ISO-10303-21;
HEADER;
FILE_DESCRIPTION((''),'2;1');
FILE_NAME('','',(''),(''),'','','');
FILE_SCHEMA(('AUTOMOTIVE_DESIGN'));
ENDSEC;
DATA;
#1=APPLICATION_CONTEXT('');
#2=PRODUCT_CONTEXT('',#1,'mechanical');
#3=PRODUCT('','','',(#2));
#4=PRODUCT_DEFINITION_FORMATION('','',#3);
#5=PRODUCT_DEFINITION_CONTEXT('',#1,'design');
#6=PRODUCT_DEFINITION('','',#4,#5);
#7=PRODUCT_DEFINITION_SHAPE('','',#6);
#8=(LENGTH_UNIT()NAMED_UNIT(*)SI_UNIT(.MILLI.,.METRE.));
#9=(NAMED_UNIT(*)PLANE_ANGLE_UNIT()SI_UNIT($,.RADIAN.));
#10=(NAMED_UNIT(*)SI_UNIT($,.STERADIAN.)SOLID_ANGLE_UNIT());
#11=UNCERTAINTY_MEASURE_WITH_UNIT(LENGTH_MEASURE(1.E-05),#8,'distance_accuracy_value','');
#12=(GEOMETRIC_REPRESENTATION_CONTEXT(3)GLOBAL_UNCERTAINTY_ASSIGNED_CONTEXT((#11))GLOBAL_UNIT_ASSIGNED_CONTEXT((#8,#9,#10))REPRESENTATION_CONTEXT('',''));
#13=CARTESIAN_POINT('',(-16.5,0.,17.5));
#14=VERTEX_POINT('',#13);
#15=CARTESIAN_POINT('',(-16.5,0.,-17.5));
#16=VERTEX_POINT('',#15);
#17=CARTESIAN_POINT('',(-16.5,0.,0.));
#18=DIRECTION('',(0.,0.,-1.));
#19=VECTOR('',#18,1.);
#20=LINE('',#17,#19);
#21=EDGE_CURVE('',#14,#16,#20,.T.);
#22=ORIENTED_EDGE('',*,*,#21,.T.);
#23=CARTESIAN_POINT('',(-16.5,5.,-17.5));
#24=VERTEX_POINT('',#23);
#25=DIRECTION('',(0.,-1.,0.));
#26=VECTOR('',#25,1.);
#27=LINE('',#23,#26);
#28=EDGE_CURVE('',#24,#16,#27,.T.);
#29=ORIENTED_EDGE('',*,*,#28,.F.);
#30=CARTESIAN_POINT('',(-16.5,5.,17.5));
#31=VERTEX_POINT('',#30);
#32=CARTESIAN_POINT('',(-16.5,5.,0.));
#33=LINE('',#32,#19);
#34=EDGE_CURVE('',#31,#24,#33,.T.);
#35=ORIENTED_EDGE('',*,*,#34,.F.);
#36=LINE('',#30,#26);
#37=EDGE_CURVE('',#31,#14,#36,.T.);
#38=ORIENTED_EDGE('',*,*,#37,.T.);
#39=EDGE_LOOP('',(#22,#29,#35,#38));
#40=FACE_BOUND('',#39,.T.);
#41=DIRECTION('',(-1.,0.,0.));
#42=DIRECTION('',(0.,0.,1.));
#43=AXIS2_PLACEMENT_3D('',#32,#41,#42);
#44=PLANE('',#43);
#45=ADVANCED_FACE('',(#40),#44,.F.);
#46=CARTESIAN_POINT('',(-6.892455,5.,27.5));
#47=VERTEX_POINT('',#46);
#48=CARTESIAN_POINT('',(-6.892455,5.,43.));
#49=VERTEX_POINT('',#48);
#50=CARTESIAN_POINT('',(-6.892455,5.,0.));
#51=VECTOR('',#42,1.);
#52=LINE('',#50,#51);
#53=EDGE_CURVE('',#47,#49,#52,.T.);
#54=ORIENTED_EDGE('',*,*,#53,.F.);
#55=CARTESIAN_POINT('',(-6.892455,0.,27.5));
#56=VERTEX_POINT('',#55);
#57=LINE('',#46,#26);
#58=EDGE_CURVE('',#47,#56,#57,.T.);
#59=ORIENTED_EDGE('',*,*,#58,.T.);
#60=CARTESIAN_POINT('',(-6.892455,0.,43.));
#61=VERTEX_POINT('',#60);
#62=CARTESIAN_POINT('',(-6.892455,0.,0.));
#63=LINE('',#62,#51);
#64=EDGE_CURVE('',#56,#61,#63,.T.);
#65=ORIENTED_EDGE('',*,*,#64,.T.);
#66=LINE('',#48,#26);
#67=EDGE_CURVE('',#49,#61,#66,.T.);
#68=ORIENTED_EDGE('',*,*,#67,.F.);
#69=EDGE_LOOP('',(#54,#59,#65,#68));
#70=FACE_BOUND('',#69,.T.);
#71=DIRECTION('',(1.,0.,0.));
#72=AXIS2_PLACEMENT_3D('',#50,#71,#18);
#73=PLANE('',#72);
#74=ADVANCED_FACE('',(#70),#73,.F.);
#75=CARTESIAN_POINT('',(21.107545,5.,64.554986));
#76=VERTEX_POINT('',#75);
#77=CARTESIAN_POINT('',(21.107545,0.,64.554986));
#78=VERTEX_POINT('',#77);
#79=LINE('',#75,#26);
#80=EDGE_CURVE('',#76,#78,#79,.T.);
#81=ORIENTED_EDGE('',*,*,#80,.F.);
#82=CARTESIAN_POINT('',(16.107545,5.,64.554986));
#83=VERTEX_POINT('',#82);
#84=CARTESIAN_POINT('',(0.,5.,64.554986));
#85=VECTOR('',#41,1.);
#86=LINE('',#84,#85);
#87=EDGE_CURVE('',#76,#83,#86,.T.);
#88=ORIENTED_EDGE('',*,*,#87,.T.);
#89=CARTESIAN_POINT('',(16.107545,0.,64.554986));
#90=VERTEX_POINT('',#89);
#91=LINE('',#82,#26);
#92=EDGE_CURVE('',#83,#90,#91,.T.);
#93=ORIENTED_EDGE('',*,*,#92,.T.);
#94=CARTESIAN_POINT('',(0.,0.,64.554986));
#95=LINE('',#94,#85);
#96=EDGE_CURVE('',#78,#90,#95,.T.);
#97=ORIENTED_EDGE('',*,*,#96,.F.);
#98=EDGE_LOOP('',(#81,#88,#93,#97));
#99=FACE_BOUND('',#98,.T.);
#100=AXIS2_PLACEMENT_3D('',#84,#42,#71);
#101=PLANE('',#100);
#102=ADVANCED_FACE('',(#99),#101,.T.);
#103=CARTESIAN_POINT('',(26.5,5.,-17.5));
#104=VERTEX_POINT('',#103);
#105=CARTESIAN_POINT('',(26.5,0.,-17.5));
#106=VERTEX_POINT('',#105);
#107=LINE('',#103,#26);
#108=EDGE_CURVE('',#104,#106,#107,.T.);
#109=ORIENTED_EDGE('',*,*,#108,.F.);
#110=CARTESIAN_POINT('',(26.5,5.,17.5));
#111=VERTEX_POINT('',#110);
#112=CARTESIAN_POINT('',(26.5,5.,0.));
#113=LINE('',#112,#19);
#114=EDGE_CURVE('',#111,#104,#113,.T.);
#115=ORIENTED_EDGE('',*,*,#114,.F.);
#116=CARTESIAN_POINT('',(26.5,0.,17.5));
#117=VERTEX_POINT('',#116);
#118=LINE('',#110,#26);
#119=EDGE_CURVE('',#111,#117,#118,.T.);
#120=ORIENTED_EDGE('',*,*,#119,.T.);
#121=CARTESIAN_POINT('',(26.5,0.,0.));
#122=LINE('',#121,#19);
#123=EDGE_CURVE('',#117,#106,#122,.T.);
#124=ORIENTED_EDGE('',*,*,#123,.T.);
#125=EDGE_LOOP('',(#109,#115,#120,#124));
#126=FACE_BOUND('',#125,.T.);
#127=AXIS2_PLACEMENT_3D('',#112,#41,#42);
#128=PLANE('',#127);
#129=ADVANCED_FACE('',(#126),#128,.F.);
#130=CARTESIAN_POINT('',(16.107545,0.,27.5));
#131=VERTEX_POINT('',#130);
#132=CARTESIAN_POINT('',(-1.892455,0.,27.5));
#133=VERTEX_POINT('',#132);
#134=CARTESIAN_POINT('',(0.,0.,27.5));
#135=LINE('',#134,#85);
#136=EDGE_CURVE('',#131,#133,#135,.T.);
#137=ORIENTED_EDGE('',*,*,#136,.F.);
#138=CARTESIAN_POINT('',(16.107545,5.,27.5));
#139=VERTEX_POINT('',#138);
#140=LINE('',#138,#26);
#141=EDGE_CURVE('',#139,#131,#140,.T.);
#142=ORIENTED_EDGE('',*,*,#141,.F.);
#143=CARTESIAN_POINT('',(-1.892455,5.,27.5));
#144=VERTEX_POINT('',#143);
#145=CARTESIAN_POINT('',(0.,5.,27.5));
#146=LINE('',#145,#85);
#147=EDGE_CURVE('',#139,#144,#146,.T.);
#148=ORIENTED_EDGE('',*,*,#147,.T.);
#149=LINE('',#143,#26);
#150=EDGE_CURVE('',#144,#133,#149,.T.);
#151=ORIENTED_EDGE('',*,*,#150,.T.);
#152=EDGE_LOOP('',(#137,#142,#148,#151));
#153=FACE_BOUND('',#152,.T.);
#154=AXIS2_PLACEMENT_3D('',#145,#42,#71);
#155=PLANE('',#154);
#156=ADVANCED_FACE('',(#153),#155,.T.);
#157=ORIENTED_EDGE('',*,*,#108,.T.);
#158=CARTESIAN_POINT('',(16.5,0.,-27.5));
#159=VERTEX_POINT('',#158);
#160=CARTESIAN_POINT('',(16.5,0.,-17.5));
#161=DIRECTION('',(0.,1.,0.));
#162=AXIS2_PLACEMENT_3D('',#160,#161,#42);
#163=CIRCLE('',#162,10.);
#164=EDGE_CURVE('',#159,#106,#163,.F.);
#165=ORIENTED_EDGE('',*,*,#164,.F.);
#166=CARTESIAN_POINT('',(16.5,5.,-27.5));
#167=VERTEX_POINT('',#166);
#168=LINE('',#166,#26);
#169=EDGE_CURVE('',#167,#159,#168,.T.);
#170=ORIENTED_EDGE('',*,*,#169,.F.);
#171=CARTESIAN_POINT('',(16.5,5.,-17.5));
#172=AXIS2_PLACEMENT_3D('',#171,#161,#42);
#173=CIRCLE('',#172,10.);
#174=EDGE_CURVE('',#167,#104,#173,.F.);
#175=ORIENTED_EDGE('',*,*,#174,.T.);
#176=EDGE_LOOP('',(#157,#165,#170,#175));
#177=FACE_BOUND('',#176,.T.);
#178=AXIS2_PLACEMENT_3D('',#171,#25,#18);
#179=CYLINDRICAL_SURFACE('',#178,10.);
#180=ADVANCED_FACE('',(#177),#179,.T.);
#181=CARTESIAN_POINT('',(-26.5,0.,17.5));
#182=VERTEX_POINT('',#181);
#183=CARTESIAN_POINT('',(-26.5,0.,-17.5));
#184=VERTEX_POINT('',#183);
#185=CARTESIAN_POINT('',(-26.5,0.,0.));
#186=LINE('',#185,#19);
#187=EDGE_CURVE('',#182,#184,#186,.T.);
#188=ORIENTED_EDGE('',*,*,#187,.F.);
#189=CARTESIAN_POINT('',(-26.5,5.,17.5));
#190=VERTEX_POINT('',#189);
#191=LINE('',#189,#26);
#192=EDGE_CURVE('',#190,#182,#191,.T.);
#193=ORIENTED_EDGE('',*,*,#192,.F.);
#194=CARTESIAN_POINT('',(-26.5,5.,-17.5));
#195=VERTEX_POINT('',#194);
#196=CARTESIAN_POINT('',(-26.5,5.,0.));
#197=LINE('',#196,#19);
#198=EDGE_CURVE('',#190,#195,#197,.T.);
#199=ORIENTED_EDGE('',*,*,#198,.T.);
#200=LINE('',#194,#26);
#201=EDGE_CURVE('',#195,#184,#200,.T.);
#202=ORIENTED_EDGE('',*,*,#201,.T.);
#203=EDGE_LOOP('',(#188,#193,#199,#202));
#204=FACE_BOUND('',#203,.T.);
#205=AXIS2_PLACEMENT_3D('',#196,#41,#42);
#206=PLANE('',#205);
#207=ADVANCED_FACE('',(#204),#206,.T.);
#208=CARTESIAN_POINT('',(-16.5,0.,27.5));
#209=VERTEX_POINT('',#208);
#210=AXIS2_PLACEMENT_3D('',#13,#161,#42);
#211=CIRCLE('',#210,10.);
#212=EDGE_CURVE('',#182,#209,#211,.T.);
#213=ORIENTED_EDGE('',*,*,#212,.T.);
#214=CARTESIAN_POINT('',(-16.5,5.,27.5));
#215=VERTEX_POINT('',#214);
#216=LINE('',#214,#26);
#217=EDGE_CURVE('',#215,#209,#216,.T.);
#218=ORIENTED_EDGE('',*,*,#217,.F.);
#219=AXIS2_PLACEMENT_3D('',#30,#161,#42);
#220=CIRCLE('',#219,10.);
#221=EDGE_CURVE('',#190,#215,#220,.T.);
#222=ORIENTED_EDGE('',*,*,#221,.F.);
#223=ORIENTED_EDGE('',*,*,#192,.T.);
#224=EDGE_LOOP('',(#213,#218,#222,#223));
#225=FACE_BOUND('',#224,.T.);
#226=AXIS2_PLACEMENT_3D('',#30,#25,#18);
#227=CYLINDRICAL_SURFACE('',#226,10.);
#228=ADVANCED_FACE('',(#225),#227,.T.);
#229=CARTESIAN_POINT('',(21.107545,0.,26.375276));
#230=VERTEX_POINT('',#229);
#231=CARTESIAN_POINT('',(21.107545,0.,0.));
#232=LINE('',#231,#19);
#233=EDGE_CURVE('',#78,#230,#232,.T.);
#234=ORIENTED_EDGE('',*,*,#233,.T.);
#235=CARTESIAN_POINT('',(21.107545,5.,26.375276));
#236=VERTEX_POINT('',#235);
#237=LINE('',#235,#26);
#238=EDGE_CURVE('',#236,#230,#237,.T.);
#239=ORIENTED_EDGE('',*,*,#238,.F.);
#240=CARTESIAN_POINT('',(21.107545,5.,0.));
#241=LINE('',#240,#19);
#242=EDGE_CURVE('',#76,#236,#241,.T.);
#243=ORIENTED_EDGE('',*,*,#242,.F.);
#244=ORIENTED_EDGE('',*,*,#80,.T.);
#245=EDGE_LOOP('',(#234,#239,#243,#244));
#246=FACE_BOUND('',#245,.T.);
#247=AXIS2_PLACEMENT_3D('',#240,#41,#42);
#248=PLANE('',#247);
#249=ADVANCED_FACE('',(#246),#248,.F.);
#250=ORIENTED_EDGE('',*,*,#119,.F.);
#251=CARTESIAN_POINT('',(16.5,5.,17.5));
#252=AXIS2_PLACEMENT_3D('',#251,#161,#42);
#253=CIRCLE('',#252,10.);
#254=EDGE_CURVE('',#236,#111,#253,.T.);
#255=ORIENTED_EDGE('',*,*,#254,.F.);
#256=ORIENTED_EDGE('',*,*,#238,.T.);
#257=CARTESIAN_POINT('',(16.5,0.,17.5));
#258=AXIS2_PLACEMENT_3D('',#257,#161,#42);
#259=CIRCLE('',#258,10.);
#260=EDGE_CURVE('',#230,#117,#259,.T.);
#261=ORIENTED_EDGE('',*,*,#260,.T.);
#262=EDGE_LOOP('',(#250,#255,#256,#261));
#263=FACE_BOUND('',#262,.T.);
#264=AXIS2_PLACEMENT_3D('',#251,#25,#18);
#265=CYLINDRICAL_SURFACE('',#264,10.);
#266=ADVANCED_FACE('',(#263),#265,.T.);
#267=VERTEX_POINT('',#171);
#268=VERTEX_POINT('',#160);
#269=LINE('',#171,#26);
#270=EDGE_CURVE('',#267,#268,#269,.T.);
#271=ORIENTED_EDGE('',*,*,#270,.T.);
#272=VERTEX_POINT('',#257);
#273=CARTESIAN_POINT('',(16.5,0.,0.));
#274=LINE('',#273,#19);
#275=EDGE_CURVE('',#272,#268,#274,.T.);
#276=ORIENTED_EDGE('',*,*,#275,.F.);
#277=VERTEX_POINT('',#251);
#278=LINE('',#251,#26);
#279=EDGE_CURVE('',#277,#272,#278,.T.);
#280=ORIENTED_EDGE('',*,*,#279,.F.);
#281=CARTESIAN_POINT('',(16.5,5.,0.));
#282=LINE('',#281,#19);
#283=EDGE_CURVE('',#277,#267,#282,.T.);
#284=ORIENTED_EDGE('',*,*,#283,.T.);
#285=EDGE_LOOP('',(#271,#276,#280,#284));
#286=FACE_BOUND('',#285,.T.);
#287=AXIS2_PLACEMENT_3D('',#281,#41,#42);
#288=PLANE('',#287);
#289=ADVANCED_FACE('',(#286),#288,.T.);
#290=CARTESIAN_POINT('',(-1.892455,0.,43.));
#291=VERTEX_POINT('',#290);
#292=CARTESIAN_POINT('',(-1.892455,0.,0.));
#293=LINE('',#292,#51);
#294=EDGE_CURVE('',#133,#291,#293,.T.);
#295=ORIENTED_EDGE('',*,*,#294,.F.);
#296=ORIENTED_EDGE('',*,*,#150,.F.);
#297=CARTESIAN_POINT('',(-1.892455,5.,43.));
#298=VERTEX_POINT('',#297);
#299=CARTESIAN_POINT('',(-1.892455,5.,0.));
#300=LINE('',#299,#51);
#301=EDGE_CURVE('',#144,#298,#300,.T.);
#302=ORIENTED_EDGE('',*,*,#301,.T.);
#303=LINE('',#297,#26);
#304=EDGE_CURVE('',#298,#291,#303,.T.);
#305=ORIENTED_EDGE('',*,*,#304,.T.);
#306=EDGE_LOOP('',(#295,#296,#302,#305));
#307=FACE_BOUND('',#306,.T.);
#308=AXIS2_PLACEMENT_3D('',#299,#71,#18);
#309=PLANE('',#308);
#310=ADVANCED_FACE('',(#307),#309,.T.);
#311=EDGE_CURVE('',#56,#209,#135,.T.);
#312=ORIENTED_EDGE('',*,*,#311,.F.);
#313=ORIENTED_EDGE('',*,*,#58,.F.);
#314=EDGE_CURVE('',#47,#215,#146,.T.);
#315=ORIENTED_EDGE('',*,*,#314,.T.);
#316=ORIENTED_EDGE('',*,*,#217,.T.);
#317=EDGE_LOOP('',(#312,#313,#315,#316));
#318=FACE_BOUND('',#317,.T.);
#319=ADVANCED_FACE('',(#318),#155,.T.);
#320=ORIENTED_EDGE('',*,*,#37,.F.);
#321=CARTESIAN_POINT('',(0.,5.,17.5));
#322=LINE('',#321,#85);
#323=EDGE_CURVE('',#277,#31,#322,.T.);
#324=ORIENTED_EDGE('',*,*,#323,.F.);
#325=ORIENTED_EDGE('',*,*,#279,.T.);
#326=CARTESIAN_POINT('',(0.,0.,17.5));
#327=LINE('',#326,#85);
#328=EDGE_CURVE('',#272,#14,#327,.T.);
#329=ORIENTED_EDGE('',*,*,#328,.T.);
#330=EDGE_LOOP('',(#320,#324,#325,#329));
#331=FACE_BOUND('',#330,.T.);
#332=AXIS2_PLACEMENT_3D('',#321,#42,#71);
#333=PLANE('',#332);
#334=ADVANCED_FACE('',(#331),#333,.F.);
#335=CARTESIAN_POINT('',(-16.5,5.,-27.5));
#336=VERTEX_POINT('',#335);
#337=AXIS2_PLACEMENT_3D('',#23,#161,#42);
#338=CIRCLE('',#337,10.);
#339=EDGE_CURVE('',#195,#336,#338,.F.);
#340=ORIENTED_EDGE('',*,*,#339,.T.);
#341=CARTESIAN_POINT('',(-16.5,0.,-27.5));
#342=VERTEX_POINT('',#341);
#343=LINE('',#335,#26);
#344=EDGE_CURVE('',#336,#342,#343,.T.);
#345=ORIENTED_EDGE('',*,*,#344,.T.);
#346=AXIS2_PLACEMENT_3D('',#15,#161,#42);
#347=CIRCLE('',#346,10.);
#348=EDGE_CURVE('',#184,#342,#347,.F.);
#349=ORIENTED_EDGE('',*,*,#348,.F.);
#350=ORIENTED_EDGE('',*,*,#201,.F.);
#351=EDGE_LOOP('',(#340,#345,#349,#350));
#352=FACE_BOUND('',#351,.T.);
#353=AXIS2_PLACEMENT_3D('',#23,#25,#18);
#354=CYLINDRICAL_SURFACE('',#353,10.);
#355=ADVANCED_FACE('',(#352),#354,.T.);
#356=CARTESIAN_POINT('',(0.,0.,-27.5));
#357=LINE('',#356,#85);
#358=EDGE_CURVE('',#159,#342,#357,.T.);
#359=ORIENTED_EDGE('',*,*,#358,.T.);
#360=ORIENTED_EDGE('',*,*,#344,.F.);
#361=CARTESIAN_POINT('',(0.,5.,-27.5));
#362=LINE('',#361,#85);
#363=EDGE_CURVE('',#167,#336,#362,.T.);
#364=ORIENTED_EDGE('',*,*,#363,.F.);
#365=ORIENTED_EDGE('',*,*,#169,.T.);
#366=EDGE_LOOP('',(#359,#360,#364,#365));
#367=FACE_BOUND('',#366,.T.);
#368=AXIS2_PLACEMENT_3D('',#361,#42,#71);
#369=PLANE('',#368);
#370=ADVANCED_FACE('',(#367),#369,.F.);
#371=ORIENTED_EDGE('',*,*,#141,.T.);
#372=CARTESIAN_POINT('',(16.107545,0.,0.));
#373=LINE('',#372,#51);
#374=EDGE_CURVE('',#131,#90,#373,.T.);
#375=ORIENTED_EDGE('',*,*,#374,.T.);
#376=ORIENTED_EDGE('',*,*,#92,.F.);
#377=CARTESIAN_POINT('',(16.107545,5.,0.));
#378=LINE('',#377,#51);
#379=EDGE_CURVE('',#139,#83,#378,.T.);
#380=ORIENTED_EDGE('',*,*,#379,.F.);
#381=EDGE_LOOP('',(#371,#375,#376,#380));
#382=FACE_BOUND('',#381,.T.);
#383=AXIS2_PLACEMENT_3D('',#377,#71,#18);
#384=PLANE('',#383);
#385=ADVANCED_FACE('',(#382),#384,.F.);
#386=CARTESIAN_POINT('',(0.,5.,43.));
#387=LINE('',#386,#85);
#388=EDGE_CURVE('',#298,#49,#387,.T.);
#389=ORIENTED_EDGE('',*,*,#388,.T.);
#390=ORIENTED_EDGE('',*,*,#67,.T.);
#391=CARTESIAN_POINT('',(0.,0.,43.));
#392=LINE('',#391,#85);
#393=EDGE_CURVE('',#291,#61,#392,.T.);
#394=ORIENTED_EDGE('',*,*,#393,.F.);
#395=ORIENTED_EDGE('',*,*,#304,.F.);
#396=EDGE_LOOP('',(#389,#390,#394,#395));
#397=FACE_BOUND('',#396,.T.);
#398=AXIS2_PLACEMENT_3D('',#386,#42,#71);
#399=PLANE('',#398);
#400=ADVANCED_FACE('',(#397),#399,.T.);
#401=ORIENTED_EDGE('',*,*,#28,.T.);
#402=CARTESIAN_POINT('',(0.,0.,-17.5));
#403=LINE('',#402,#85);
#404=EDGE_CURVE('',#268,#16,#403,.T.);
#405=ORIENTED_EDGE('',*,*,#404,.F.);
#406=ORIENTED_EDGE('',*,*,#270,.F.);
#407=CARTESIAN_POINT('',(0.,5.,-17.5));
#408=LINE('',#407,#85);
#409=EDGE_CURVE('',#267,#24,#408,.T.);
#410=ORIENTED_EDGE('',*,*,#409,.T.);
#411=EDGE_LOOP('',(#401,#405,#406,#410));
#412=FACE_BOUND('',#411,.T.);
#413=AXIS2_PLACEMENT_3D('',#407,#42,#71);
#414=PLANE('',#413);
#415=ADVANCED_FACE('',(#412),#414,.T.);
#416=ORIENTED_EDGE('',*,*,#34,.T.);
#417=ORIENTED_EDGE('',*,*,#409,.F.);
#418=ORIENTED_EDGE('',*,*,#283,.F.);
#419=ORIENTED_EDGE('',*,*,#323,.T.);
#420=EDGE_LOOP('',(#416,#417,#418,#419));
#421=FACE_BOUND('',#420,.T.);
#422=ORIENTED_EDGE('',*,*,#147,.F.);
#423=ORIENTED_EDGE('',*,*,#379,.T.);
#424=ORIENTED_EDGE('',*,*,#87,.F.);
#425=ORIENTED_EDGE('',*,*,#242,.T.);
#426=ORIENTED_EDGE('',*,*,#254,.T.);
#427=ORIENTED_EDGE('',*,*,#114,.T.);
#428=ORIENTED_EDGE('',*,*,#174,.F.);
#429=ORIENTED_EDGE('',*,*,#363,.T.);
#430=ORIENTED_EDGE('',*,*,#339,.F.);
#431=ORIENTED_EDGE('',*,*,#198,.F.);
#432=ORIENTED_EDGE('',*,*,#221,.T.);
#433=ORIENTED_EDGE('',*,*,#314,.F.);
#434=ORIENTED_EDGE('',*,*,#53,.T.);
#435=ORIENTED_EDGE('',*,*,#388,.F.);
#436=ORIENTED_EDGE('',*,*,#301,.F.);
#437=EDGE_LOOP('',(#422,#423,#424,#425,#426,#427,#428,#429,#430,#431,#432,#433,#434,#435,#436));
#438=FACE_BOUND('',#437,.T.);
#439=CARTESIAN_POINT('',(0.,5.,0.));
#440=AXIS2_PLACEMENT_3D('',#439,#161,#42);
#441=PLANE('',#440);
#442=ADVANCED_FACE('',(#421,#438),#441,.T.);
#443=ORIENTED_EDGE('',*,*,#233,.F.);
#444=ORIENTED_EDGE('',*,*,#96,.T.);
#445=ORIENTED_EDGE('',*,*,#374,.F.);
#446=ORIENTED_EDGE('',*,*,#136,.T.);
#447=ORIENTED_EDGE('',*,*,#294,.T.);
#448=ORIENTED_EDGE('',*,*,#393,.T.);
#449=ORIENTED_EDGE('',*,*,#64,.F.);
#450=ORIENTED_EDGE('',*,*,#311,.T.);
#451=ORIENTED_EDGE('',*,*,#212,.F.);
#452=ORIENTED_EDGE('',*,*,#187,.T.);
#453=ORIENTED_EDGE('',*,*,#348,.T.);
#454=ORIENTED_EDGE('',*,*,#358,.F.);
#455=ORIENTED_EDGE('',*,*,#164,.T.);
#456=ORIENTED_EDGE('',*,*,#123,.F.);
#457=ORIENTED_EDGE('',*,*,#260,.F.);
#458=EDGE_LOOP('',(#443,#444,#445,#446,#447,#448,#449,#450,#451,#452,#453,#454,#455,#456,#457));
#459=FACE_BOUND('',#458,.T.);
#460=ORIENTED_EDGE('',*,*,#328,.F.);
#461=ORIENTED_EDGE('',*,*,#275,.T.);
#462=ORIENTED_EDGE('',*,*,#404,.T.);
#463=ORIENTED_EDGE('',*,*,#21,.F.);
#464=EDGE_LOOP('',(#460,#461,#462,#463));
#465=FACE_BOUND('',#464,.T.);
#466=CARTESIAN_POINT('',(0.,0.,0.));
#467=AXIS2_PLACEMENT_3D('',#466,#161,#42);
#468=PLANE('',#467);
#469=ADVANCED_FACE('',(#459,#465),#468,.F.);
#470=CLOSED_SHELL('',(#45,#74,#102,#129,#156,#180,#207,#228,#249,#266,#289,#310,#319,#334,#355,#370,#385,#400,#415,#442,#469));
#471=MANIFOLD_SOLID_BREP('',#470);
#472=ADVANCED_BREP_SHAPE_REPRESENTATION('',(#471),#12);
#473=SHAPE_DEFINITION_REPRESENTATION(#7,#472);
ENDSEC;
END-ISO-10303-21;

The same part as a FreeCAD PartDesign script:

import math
import FreeCAD as App
import Part
import Sketcher
from FreeCAD import Vector
Q = App.Units.Quantity

doc = App.newDocument("Part")
body = doc.addObject("PartDesign::Body", "Body")

# Sketch on XZ plane
sketch1 = body.newObject("Sketcher::SketchObject", "Sketch")
sketch1.AttachmentSupport = (doc.getObject("XZ_Plane"), [""])
sketch1.MapMode = "FlatFace"
sketch1.addGeometry([
    Part.LineSegment(Vector(-2, 28, 0), Vector(16, 28, 0)),  # 0
    Part.LineSegment(Vector(16, 28, 0), Vector(16, 65, 0)),  # 1
    Part.LineSegment(Vector(16, 65, 0), Vector(21, 65, 0)),  # 2
    Part.LineSegment(Vector(21, 65, 0), Vector(21, 26, 0)),  # 3
    Part.ArcOfCircle(Part.Circle(Vector(16, 18, 0), Vector(0, 0, 1), 10), math.radians(0), math.radians(63)),  # 4
    Part.LineSegment(Vector(26, 18, 0), Vector(26, -18, 0)),  # 5
    Part.ArcOfCircle(Part.Circle(Vector(16, -18, 0), Vector(0, 0, 1), 10), math.radians(-90), math.radians(0)),  # 6
    Part.LineSegment(Vector(16, -28, 0), Vector(-16, -28, 0)),  # 7
    Part.ArcOfCircle(Part.Circle(Vector(-16, -18, 0), Vector(0, 0, 1), 10), math.radians(180), math.radians(270)),  # 8
    Part.LineSegment(Vector(-26, -18, 0), Vector(-26, 18, 0)),  # 9
    Part.ArcOfCircle(Part.Circle(Vector(-16, 18, 0), Vector(0, 0, 1), 10), math.radians(90), math.radians(180)),  # 10
    Part.LineSegment(Vector(-16, 28, 0), Vector(-7, 28, 0)),  # 11
    Part.LineSegment(Vector(-7, 28, 0), Vector(-7, 43, 0)),  # 12
    Part.LineSegment(Vector(-7, 43, 0), Vector(-2, 43, 0)),  # 13
    Part.LineSegment(Vector(-2, 43, 0), Vector(-2, 28, 0)),  # 14
    Part.LineSegment(Vector(-16, 18, 0), Vector(-16, -18, 0)),  # 15
    Part.LineSegment(Vector(-16, -18, 0), Vector(16, -18, 0)),  # 16
    Part.LineSegment(Vector(16, -18, 0), Vector(16, 18, 0)),  # 17
    Part.LineSegment(Vector(16, 18, 0), Vector(-16, 18, 0)),  # 18
], False)
sketch1.addConstraint([
    Sketcher.Constraint("Coincident", 0, 2, 1, 1),
    Sketcher.Constraint("Coincident", 1, 2, 2, 1),
    Sketcher.Constraint("Coincident", 2, 2, 3, 1),
    Sketcher.Constraint("Coincident", 3, 2, 4, 2),
    Sketcher.Constraint("Tangent", 4, 1, 5, 1),
    Sketcher.Constraint("Tangent", 5, 2, 6, 2),
    Sketcher.Constraint("Tangent", 6, 1, 7, 1),
    Sketcher.Constraint("Tangent", 7, 2, 8, 2),
    Sketcher.Constraint("Tangent", 8, 1, 9, 1),
    Sketcher.Constraint("Tangent", 9, 2, 10, 2),
    Sketcher.Constraint("Tangent", 10, 1, 11, 1),
    Sketcher.Constraint("Coincident", 11, 2, 12, 1),
    Sketcher.Constraint("Coincident", 12, 2, 13, 1),
    Sketcher.Constraint("Coincident", 13, 2, 14, 1),
    Sketcher.Constraint("Coincident", 14, 2, 0, 1),
    Sketcher.Constraint("Coincident", 15, 2, 16, 1),
    Sketcher.Constraint("Coincident", 16, 2, 17, 1),
    Sketcher.Constraint("Coincident", 17, 2, 18, 1),
    Sketcher.Constraint("Coincident", 18, 2, 15, 1),
    Sketcher.Constraint("Horizontal", 0),
    Sketcher.Constraint("Vertical", 1),
    Sketcher.Constraint("Horizontal", 2),
    Sketcher.Constraint("Vertical", 3),
    Sketcher.Constraint("Vertical", 5),
    Sketcher.Constraint("Horizontal", 7),
    Sketcher.Constraint("Vertical", 9),
    Sketcher.Constraint("Horizontal", 11),
    Sketcher.Constraint("Vertical", 12),
    Sketcher.Constraint("Horizontal", 13),
    Sketcher.Constraint("Vertical", 14),
    Sketcher.Constraint("Vertical", 15),
    Sketcher.Constraint("Horizontal", 16),
    Sketcher.Constraint("Vertical", 17),
    Sketcher.Constraint("Horizontal", 18),
    Sketcher.Constraint("Coincident", 15, 2, 8, 3),
    Sketcher.Constraint("Coincident", 16, 2, 6, 3),
    Sketcher.Constraint("Coincident", 17, 2, 4, 3),
    Sketcher.Constraint("Coincident", 18, 2, 10, 3),
    Sketcher.Constraint("Symmetric", 4, 3, 8, 3, -1, 1),
    Sketcher.Constraint("Horizontal", 0, 2, 10, 1),
    Sketcher.Constraint("Equal", 2, 13),
    Sketcher.Constraint("Radius", 4, Q("10 mm")),
    Sketcher.Constraint("DistanceX", 0, 1, 0, 2, Q("18 mm")),
    Sketcher.Constraint("DistanceX", 2, 1, 2, 2, Q("5 mm")),
    Sketcher.Constraint("DistanceX", 7, 2, 7, 1, Q("33 mm")),
    Sketcher.Constraint("DistanceY", 5, 2, 5, 1, Q("35 mm")),
    Sketcher.Constraint("DistanceY", 12, 1, 12, 2, Q("15.5 mm")),
    Sketcher.Constraint("DistanceY", 3, 2, 3, 1, Q("38.17971 mm")),
    Sketcher.Constraint("DistanceX", 11, 1, 11, 2, Q("9.607545 mm")),
])
pad1 = body.newObject("PartDesign::Pad", "Pad")
pad1.Profile = sketch1
pad1.Length = 5
pad1.Reversed = True

doc.recompute()
